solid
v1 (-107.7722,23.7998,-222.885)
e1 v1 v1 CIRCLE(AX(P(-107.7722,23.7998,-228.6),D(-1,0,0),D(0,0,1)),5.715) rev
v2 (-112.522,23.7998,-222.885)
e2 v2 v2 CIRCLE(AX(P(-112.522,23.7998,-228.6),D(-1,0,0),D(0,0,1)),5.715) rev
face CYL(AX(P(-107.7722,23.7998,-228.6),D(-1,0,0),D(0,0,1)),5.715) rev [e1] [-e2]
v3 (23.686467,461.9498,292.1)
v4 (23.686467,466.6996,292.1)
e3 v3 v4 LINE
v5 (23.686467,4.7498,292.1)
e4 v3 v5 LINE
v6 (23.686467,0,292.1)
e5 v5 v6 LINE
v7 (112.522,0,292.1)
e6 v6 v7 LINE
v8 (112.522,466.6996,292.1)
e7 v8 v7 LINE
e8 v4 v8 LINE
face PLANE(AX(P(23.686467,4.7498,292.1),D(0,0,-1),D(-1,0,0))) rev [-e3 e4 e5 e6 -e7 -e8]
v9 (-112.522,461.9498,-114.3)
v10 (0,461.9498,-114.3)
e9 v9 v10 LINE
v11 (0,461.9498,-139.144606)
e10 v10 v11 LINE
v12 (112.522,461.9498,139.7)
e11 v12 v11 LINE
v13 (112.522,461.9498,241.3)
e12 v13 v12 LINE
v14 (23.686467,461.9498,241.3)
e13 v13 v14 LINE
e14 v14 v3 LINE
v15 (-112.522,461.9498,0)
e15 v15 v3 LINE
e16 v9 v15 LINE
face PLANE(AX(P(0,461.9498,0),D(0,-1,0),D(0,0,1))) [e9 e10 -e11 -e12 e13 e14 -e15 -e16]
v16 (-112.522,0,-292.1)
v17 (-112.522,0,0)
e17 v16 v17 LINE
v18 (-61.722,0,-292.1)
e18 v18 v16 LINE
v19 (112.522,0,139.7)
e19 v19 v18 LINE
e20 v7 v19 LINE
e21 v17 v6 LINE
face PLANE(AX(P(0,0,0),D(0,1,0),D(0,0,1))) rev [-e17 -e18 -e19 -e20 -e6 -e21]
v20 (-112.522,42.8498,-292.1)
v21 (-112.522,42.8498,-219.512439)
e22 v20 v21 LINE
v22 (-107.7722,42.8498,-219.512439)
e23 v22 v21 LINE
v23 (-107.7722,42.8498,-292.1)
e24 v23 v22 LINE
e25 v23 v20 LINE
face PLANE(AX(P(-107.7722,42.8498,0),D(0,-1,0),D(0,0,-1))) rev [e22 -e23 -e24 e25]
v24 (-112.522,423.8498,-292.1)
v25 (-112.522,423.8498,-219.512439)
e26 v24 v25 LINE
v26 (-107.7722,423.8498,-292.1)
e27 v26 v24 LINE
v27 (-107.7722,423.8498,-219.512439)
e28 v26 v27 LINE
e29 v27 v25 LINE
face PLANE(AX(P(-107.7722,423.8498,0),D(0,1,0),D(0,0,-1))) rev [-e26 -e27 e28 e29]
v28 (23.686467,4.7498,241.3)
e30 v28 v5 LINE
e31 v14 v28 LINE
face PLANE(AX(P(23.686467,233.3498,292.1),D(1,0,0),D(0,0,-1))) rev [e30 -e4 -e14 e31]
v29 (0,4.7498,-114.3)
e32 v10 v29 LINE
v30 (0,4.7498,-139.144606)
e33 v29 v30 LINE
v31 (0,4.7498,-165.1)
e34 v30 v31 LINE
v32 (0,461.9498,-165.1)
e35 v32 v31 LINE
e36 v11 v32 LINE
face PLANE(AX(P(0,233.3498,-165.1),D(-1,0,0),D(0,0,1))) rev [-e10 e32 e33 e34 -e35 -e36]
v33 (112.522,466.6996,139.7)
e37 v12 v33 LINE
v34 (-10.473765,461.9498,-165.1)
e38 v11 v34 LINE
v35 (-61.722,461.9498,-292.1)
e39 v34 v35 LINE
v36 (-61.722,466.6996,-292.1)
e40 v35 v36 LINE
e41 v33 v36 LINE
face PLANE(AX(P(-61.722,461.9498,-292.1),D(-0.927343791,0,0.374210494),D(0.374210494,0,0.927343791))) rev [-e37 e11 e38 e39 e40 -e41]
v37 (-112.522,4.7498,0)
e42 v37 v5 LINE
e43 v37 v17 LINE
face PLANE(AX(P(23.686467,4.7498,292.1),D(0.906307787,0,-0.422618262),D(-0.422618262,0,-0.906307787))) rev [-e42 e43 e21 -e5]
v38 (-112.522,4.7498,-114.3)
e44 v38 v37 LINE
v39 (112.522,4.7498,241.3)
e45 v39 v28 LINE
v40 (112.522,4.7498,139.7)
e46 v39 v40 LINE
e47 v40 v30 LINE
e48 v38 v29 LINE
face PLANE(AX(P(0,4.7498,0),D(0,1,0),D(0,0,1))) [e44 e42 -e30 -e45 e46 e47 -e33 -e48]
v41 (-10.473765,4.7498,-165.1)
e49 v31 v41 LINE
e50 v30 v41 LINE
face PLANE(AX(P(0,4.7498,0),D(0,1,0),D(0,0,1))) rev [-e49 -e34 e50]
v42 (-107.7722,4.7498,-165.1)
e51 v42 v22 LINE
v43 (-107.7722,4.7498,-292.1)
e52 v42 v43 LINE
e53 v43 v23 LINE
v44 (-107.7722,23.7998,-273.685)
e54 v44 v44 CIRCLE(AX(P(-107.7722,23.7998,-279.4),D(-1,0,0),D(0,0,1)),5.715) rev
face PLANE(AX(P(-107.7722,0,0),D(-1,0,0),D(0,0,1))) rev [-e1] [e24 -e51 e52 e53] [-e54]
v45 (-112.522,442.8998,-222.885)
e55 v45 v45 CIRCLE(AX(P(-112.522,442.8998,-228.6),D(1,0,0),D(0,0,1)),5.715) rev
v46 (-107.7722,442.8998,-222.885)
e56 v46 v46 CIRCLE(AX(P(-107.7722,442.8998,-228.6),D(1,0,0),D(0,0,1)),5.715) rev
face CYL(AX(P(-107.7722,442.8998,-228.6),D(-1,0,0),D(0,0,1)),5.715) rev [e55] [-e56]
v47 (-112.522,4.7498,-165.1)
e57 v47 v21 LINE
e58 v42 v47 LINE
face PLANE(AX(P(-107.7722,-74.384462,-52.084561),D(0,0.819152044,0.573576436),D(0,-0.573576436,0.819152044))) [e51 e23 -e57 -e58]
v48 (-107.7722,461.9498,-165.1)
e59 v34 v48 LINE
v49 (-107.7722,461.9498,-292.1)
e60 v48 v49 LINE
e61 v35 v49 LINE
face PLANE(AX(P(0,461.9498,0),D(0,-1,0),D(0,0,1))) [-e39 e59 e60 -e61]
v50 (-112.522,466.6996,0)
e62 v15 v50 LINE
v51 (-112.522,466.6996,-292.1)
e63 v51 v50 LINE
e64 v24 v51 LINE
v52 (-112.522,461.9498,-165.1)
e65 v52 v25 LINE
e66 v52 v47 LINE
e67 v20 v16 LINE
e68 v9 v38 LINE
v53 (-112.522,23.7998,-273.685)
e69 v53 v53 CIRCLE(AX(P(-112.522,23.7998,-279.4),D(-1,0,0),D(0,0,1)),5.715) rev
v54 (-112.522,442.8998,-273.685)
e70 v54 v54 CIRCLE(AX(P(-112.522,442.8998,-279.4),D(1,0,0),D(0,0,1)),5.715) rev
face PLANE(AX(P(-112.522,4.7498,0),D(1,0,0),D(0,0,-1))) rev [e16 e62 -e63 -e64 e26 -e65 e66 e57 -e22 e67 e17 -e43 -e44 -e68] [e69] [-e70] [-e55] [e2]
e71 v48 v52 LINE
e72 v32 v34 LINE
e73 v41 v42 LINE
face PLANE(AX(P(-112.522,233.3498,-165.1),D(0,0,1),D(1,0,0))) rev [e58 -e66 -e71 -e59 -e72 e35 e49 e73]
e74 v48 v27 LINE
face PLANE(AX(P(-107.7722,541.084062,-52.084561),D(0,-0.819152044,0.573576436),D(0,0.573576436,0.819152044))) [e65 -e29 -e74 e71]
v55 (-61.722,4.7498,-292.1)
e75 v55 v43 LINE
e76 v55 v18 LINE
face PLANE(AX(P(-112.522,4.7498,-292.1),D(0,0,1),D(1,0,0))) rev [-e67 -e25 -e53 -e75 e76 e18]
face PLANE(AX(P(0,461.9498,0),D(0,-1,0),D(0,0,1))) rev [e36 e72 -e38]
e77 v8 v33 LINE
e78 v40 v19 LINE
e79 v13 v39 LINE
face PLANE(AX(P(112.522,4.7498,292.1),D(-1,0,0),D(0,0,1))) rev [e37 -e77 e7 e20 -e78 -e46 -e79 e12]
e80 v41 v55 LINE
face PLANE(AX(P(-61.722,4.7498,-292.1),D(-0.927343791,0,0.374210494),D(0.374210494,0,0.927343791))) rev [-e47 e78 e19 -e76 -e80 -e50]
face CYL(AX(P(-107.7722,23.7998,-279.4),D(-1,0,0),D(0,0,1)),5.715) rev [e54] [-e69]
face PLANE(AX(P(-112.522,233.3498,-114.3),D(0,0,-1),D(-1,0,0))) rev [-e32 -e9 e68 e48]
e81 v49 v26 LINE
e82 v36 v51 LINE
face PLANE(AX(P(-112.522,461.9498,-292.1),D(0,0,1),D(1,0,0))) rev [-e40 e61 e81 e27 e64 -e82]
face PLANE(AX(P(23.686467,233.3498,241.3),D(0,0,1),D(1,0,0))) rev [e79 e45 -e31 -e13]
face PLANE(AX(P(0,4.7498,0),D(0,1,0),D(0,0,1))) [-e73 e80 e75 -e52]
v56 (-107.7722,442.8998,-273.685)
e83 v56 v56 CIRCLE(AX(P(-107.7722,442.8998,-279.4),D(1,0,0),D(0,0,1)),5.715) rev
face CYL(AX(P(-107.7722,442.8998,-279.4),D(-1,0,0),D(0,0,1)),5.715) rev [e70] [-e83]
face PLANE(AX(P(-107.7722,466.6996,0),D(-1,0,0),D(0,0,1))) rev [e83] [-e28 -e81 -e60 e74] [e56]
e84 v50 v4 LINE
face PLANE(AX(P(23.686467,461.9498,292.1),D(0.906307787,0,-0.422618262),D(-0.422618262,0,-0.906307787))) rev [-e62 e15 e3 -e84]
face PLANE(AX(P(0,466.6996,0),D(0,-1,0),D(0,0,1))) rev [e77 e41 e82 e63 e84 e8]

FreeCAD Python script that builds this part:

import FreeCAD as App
import Part
import Sketcher

V = App.Vector
Q = App.Units.Quantity

doc = App.newDocument("Part")
params = doc.addObject("Spreadsheet::Sheet", "Params")
for row, (alias, value) in enumerate([
    ("sketch1_width", "2 in"),
    ("sketch1_height", "6 in"),
    ("sketch1_height2", "11.5 in"),
    ("pad1_length", "0.187 in"),
    ("sketch2_diameter", "0.45 in"),
    ("sketch2_height", "5 in"),
    ("sketch2_width", "1.5 in"),
    ("pad2_length", "0.187 in"),
    ("sketch3_height", "2 in"),
    ("sketch3_width", "4.43 in"),
    ("pad3_length", "9 in"),
], start=1):
    params.set(f"A{row}", alias)
    params.set(f"B{row}", "=" + value)
    params.setAlias(f"B{row}", alias)

body = doc.addObject("PartDesign::Body", "Body")

sketch1 = body.newObject("Sketcher::SketchObject", "Sketch")
sketch1.AttachmentSupport = (doc.getObject("XZ_Plane"), [""])
sketch1.MapMode = "FlatFace"
sketch1.addGeometry([
    Part.LineSegment(V(24, 292, 0), V(113, 292, 0)),
    Part.LineSegment(V(113, 292, 0), V(113, 140, 0)),
    Part.LineSegment(V(113, 140, 0), V(-62, -292, 0)),
    Part.LineSegment(V(-62, -292, 0), V(-113, -292, 0)),
    Part.LineSegment(V(-113, -292, 0), V(-113, 0, 0)),
    Part.LineSegment(V(-113, 0, 0), V(24, 292, 0)),
], False)
sketch1.addConstraint([
    Sketcher.Constraint("Coincident", 0, 2, 1, 1),
    Sketcher.Constraint("Coincident", 1, 2, 2, 1),
    Sketcher.Constraint("Coincident", 2, 2, 3, 1),
    Sketcher.Constraint("Coincident", 3, 2, 4, 1),
    Sketcher.Constraint("Coincident", 4, 2, 5, 1),
    Sketcher.Constraint("Coincident", 5, 2, 0, 1),
    Sketcher.Constraint("Horizontal", 0),
    Sketcher.Constraint("Vertical", 1),
    Sketcher.Constraint("Horizontal", 3),
    Sketcher.Constraint("Vertical", 4),
    Sketcher.Constraint("Symmetric", 0, 2, 3, 2, -1, 1),
    Sketcher.Constraint("PointOnObject", 4, 2, -1),
    Sketcher.Constraint("DistanceX", 3, 2, 3, 1, Q("2 in")),
    Sketcher.Constraint("DistanceY", 1, 2, 1, 1, Q("6 in")),
    Sketcher.Constraint("DistanceY", 4, 1, 4, 2, Q("11.5 in")),
    Sketcher.Constraint("Angle", 5, Q("65 deg")),
    Sketcher.Constraint("DistanceX", -1, 1, 0, 2, Q("4.43 in")),
])
sketch1.setExpression("Constraints[12]", "Params.sketch1_width")
sketch1.setExpression("Constraints[13]", "Params.sketch1_height")
sketch1.setExpression("Constraints[14]", "Params.sketch1_height2")
pad1 = body.newObject("PartDesign::Pad", "Pad")
pad1.Profile = sketch1
pad1.setExpression("Length", "Params.pad1_length")
pad1.Reversed = True
body2 = doc.addObject("PartDesign::Body", "Body001")

sketch2 = body2.newObject("Sketcher::SketchObject", "Sketch001")
sketch2.AttachmentSupport = (doc.getObject("YZ_Plane001"), [""])
sketch2.MapMode = "FlatFace"
sketch2.AttachmentOffset = App.Placement(V(0, 0, -4.43 * 25.4), App.Rotation())
sketch2.addGeometry([
    Part.LineSegment(V(43, -220, 0), V(5, -165, 0)),
    Part.LineSegment(V(5, -165, 0), V(5, -292, 0)),
    Part.LineSegment(V(5, -292, 0), V(43, -292, 0)),
    Part.LineSegment(V(43, -292, 0), V(43, -220, 0)),
    Part.Circle(V(24, -279, 0), V(0, 0, 1), 6),
    Part.Circle(V(24, -229, 0), V(0, 0, 1), 6),
], False)
sketch2.addConstraint([
    Sketcher.Constraint("Coincident", 0, 2, 1, 1),
    Sketcher.Constraint("Coincident", 1, 2, 2, 1),
    Sketcher.Constraint("Coincident", 2, 2, 3, 1),
    Sketcher.Constraint("Coincident", 3, 2, 0, 1),
    Sketcher.Constraint("Vertical", 1),
    Sketcher.Constraint("Horizontal", 2),
    Sketcher.Constraint("Vertical", 3),
    Sketcher.Constraint("Equal", 4, 5),
    Sketcher.Constraint("Vertical", 4, 3, 5, 3),
    Sketcher.Constraint("Diameter", 4, Q("0.45 in")),
    Sketcher.Constraint("DistanceY", 1, 2, 1, 1, Q("5 in")),
    Sketcher.Constraint("DistanceX", 2, 1, 2, 2, Q("1.5 in")),
    Sketcher.Constraint("DistanceY", 4, 3, -1, 1, Q("11 in")),
    Sketcher.Constraint("DistanceY", 5, 3, -1, 1, Q("9 in")),
    Sketcher.Constraint("Angle", 0, Q("125 deg")),
    Sketcher.Constraint("DistanceY", 0, 2, -1, 1, Q("6.5 in")),
    Sketcher.Constraint("DistanceX", 0, 2, 5, 3, Q("0.75 in")),
    Sketcher.Constraint("DistanceX", -1, 1, 4, 3, Q("0.937 in")),
])
sketch2.setExpression("Constraints[9]", "Params.sketch2_diameter")
sketch2.setExpression("Constraints[10]", "Params.sketch2_height")
sketch2.setExpression("Constraints[11]", "Params.sketch2_width")
pad2 = body2.newObject("PartDesign::Pad", "Pad001")
pad2.Profile = sketch2
pad2.setExpression("Length", "Params.pad2_length")
doc.recompute()

boolean = body.newObject("PartDesign::Boolean", "Boolean")
boolean.Type = "Fuse"
boolean.addObjects([body2])

sketch3 = body.newObject("Sketcher::SketchObject", "Sketch002")
sketch3.AttachmentSupport = (doc.getObject("XZ_Plane"), [""])
sketch3.MapMode = "FlatFace"
sketch3.AttachmentOffset = App.Placement(V(0, 0, -0.187 * 25.4), App.Rotation())
sketch3.addGeometry([
    Part.LineSegment(V(-113, -165, 0), V(-113, -114, 0)),
    Part.LineSegment(V(-113, -114, 0), V(0, -114, 0)),
    Part.LineSegment(V(0, -114, 0), V(0, -165, 0)),
    Part.LineSegment(V(0, -165, 0), V(-113, -165, 0)),
    Part.LineSegment(V(24, 241, 0), V(24, 292, 0)),
    Part.LineSegment(V(24, 292, 0), V(113, 292, 0)),
    Part.LineSegment(V(113, 292, 0), V(113, 241, 0)),
    Part.LineSegment(V(113, 241, 0), V(24, 241, 0)),
], False)
sketch3.addConstraint([
    Sketcher.Constraint("Coincident", 0, 2, 1, 1),
    Sketcher.Constraint("Coincident", 1, 2, 2, 1),
    Sketcher.Constraint("Coincident", 2, 2, 3, 1),
    Sketcher.Constraint("Coincident", 3, 2, 0, 1),
    Sketcher.Constraint("Coincident", 4, 2, 5, 1),
    Sketcher.Constraint("Coincident", 5, 2, 6, 1),
    Sketcher.Constraint("Coincident", 6, 2, 7, 1),
    Sketcher.Constraint("Coincident", 7, 2, 4, 1),
    Sketcher.Constraint("Vertical", 0),
    Sketcher.Constraint("Horizontal", 1),
    Sketcher.Constraint("Vertical", 2),
    Sketcher.Constraint("Horizontal", 3),
    Sketcher.Constraint("Vertical", 4),
    Sketcher.Constraint("Horizontal", 5),
    Sketcher.Constraint("Vertical", 6),
    Sketcher.Constraint("Horizontal", 7),
    Sketcher.Constraint("PointOnObject", 1, 2, -2),
    Sketcher.Constraint("Equal", 2, 4),
    Sketcher.Constraint("DistanceY", 0, 1, 0, 2, Q("2 in")),
    Sketcher.Constraint("DistanceY", 1, 2, 4, 2, Q("16 in")),
    Sketcher.Constraint("DistanceX", 1, 1, 1, 2, Q("4.43 in")),
    Sketcher.Constraint("DistanceY", 0, 2, -1, 1, Q("4.5 in")),
    Sketcher.Constraint("DistanceX", -1, 1, 5, 2, Q("4.43 in")),
    Sketcher.Constraint("DistanceX", 5, 1, 5, 2, Q("88.835533 mm")),
])
sketch3.setExpression("Constraints[18]", "Params.sketch3_height")
sketch3.setExpression("Constraints[20]", "Params.sketch3_width")
pad3 = body.newObject("PartDesign::Pad", "Pad002")
pad3.Profile = sketch3
pad3.setExpression("Length", "Params.pad3_length")
pad3.Reversed = True
body3 = doc.addObject("PartDesign::Body", "Body002")
doc.recompute()

body3.BaseFeature = body
doc.recompute()

mirroring = doc.addObject("Part::Mirroring", "Mirroring")
mirroring.Source = body
mirroring.Base = V(0, 233.3498, 0)
mirroring.Normal = V(0, 1, 0)
body4 = doc.addObject("PartDesign::Body", "Body003")
body4.BaseFeature = mirroring
boolean2 = body3.newObject("PartDesign::Boolean", "Boolean001")
boolean2.Type = "Fuse"
boolean2.addObjects([body4])
doc.recompute()
mirroring.Visibility = False

doc.recompute()
